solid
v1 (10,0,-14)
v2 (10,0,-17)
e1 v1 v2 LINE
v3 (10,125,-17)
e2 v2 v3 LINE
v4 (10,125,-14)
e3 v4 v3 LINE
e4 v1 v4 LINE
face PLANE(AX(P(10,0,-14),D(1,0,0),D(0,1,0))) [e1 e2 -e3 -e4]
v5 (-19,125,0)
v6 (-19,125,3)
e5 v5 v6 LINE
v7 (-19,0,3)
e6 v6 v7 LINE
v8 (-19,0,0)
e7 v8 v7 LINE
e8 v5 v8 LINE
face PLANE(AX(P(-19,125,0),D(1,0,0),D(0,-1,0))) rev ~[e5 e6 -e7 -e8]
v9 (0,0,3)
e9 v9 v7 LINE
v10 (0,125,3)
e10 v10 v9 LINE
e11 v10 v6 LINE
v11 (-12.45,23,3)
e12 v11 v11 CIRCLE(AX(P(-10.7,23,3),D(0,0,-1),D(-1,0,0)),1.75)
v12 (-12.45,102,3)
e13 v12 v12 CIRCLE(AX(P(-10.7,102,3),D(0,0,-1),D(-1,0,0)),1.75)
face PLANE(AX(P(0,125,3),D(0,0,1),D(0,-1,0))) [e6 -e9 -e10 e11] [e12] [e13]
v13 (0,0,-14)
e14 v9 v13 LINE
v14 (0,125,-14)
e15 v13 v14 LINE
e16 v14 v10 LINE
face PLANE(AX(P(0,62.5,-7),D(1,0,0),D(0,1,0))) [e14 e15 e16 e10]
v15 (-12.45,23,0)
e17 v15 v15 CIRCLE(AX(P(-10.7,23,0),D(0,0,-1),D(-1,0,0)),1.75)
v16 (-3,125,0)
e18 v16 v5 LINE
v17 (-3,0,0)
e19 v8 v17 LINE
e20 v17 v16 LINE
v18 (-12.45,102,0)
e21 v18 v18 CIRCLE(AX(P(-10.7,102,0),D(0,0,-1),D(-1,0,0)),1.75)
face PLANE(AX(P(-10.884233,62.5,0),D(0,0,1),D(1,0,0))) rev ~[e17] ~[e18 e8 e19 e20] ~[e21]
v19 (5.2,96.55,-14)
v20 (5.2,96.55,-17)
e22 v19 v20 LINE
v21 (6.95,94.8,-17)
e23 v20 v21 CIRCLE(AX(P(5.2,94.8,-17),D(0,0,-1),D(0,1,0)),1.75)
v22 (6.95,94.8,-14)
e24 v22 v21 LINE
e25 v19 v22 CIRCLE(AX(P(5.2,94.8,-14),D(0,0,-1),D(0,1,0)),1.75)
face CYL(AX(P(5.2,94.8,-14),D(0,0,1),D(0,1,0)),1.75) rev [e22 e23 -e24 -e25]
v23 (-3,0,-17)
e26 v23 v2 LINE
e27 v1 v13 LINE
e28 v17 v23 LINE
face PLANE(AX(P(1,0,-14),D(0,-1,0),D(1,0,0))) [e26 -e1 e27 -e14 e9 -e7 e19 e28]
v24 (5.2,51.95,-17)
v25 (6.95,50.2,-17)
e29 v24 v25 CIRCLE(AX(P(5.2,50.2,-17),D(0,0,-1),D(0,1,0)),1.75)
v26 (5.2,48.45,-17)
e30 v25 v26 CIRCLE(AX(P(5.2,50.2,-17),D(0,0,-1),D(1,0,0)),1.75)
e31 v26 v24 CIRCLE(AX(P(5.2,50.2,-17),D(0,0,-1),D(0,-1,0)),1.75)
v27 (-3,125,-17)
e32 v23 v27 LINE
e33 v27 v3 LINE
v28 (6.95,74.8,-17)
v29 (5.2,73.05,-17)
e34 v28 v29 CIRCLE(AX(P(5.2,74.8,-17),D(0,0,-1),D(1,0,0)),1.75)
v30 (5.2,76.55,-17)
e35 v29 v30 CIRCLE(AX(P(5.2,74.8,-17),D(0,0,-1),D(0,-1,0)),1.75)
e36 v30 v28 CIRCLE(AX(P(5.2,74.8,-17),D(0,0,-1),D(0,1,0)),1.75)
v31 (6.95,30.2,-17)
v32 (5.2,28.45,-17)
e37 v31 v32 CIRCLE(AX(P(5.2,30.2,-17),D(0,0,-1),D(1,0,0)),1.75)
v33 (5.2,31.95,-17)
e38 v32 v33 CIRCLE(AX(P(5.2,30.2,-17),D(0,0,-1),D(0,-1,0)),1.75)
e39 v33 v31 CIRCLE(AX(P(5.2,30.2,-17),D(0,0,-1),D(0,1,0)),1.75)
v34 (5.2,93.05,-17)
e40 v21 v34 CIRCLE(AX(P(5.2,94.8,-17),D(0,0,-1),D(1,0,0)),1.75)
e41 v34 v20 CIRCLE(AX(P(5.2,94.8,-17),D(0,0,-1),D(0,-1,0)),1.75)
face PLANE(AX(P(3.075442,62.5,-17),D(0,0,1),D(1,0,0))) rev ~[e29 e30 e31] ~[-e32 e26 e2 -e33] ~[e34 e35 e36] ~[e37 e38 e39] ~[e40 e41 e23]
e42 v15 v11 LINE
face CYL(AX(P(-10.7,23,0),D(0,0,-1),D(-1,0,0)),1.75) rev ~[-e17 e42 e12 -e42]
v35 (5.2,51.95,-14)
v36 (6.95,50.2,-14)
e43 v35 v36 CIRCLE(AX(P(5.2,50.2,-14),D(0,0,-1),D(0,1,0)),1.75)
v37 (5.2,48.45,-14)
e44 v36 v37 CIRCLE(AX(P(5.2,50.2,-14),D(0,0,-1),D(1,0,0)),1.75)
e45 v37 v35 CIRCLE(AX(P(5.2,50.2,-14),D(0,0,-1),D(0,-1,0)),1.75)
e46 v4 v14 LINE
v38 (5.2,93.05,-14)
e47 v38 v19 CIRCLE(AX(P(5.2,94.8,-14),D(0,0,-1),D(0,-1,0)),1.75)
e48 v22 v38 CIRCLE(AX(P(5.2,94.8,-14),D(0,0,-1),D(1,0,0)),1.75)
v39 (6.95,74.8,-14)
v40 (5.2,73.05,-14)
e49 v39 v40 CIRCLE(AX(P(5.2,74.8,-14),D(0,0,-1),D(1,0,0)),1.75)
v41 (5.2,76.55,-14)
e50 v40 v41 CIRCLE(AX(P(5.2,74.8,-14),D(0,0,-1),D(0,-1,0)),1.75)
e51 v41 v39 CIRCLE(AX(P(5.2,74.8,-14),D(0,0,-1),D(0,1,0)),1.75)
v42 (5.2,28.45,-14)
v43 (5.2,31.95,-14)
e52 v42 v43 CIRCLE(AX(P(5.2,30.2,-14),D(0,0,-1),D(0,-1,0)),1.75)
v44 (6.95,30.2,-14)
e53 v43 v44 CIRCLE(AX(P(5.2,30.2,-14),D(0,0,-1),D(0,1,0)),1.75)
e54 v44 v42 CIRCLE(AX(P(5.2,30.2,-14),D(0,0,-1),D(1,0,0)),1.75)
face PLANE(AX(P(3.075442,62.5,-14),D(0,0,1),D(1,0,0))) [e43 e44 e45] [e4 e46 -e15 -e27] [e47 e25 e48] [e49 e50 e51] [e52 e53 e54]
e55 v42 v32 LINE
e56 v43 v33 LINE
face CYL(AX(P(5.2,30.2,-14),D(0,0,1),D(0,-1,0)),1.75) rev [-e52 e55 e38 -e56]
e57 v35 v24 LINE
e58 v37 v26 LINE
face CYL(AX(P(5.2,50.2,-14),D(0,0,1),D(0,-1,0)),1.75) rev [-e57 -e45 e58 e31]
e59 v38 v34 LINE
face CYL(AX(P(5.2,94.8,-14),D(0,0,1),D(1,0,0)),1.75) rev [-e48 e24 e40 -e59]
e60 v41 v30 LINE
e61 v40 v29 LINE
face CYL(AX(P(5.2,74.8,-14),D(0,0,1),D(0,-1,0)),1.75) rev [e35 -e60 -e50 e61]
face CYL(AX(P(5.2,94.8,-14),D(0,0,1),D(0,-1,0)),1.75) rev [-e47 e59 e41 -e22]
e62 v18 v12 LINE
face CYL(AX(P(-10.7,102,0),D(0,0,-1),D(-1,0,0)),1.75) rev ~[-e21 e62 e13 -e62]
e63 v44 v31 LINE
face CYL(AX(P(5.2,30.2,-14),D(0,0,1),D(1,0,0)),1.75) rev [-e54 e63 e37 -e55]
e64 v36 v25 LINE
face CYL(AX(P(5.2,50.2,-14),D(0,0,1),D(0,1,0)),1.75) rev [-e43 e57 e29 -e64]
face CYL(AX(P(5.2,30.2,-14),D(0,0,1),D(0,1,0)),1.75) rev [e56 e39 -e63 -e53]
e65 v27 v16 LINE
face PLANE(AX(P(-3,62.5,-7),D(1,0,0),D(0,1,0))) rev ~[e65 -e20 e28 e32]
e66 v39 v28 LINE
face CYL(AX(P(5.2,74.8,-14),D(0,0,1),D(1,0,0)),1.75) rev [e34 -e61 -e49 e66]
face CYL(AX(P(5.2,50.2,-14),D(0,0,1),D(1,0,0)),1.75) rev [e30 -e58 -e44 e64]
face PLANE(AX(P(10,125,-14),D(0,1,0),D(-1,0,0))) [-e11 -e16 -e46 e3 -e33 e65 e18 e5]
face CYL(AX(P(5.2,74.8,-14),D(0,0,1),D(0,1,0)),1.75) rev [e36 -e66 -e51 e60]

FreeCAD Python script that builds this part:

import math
import FreeCAD as App
import Part
import Sketcher

V = App.Vector
Q = App.Units.Quantity


def add_polygon(sketch, points):
    """Adds a closed chain of lines whose ends are joined by coincident constraints."""
    first, n = sketch.GeometryCount, len(points)
    for a, b in zip(points, points[1:] + points[:1]):
        sketch.addGeometry(Part.LineSegment(App.Vector(*a, 0), App.Vector(*b, 0)), False)
    for i in range(n):
        sketch.addConstraint(Sketcher.Constraint("Coincident", first + i, 2, first + (i + 1) % n, 1))

doc = App.newDocument("Part")
params = doc.addObject("Spreadsheet::Sheet", "Params")
for row, (alias, value) in enumerate([
    ("sketch1_diameter", "3.5 mm"),
    ("sketch1_height", "125 mm"),
    ("pad1_length", "3 mm"),
    ("sketch2_width", "125 mm"),
    ("sketch2_height", "20 mm"),
    ("pad2_length", "3 mm"),
    ("sketch3_width", "1 mm"),
    ("sketch3_height", "3 mm"),
    ("pad3_length", "125 mm"),
    ("sketch4_width", "9 mm"),
    ("sketch4_height", "125 mm"),
    ("sketch4_radius", "1.75 mm"),
    ("pad4_length", "3 mm"),
], start=1):
    params.set(f"A{row}", alias)
    params.set(f"B{row}", "=" + value)
    params.setAlias(f"B{row}", alias)

body = doc.addObject("PartDesign::Body", "Body")

# Sketch on XY plane
sketch1 = body.newObject("Sketcher::SketchObject", "Sketch")
sketch1.AttachmentSupport = (doc.getObject("XY_Plane"), [""])
sketch1.MapMode = "FlatFace"
add_polygon(sketch1, [(-19, 0), (-2.768467, 0), (-2.768467, 125), (-19, 125)])  # lines 0-3
sketch1.addGeometry(Part.Circle(V(-10.7, 23, 0), V(0, 0, 1), 1.75), False)  # 4
sketch1.addGeometry(Part.Circle(V(-10.7, 102, 0), V(0, 0, 1), 1.75), False)  # 5
sketch1.addConstraint(Sketcher.Constraint("Horizontal", 0))
sketch1.addConstraint(Sketcher.Constraint("Vertical", 1))
sketch1.addConstraint(Sketcher.Constraint("Horizontal", 2))
sketch1.addConstraint(Sketcher.Constraint("Vertical", 3))
sketch1.addConstraint(Sketcher.Constraint("Equal", 4, 5))
sketch1.addConstraint(Sketcher.Constraint("PointOnObject", 0, 2, -1))
sketch1.addConstraint(Sketcher.Constraint("Vertical", 4, 3, 5, 3))
sketch1.addConstraint(Sketcher.Constraint("Diameter", 4, Q("3.5 mm")))
sketch1.addConstraint(Sketcher.Constraint("DistanceY", 1, 1, 1, 2, Q("125 mm")))
sketch1.addConstraint(Sketcher.Constraint("DistanceY", -1, 1, 4, 3, Q("23 mm")))
sketch1.addConstraint(Sketcher.Constraint("DistanceY", -1, 1, 5, 3, Q("102 mm")))
sketch1.addConstraint(Sketcher.Constraint("DistanceX", 2, 2, -1, 1, Q("19 mm")))
sketch1.addConstraint(Sketcher.Constraint("DistanceX", 4, 3, -1, 1, Q("10.7 mm")))
sketch1.addConstraint(Sketcher.Constraint("DistanceX", 0, 1, 0, 2, Q("16.231533 mm")))
sketch1.setExpression("Constraints[11]", "Params.sketch1_diameter")
sketch1.setExpression("Constraints[12]", "Params.sketch1_height")
pad1 = body.newObject("PartDesign::Pad", "Pad")
pad1.Profile = sketch1
pad1.setExpression("Length", "Params.pad1_length")

# Sketch on YZ plane
sketch2 = body.newObject("Sketcher::SketchObject", "Sketch001")
sketch2.AttachmentSupport = (doc.getObject("YZ_Plane"), [""])
sketch2.MapMode = "FlatFace"
add_polygon(sketch2, [(0, 3), (0, -17), (125, -17), (125, 3)])  # lines 0-3
sketch2.addConstraint(Sketcher.Constraint("Vertical", 0))
sketch2.addConstraint(Sketcher.Constraint("Horizontal", 1))
sketch2.addConstraint(Sketcher.Constraint("Vertical", 2))
sketch2.addConstraint(Sketcher.Constraint("Horizontal", 3))
sketch2.addConstraint(Sketcher.Constraint("PointOnObject", 0, 2, -2))
sketch2.addConstraint(Sketcher.Constraint("DistanceX", 1, 1, 1, 2, Q("125 mm")))
sketch2.addConstraint(Sketcher.Constraint("DistanceY", 0, 2, 0, 1, Q("20 mm")))
sketch2.addConstraint(Sketcher.Constraint("DistanceY", 0, 2, -1, 1, Q("17 mm")))
sketch2.setExpression("Constraints[9]", "Params.sketch2_width")
sketch2.setExpression("Constraints[10]", "Params.sketch2_height")
pad2 = body.newObject("PartDesign::Pad", "Pad001")
pad2.Profile = sketch2
pad2.setExpression("Length", "Params.pad2_length")
pad2.Reversed = True

# Sketch on XZ plane
sketch3 = body.newObject("Sketcher::SketchObject", "Sketch002")
sketch3.AttachmentSupport = (doc.getObject("XZ_Plane"), [""])
sketch3.MapMode = "FlatFace"
add_polygon(sketch3, [(0, -14), (0, -17), (1, -17), (1, -14)])  # lines 0-3
sketch3.addConstraint(Sketcher.Constraint("Vertical", 0))
sketch3.addConstraint(Sketcher.Constraint("Horizontal", 1))
sketch3.addConstraint(Sketcher.Constraint("Vertical", 2))
sketch3.addConstraint(Sketcher.Constraint("Horizontal", 3))
sketch3.addConstraint(Sketcher.Constraint("PointOnObject", 0, 2, -2))
sketch3.addConstraint(Sketcher.Constraint("DistanceX", 1, 1, 1, 2, Q("1 mm")))
sketch3.addConstraint(Sketcher.Constraint("DistanceY", 0, 2, 0, 1, Q("3 mm")))
sketch3.addConstraint(Sketcher.Constraint("DistanceY", 0, 2, -1, 1, Q("17 mm")))
sketch3.setExpression("Constraints[9]", "Params.sketch3_width")
sketch3.setExpression("Constraints[10]", "Params.sketch3_height")
pad3 = body.newObject("PartDesign::Pad", "Pad002")
pad3.Profile = sketch3
pad3.setExpression("Length", "Params.pad3_length")
pad3.Reversed = True

# Sketch on XY plane
sketch4 = body.newObject("Sketcher::SketchObject", "Sketch003")
sketch4.AttachmentSupport = (doc.getObject("XY_Plane"), [""])
sketch4.MapMode = "FlatFace"
sketch4.AttachmentOffset = App.Placement(V(0, 0, -14), App.Rotation())
add_polygon(sketch4, [(1, 125), (1, 0), (10, 0), (10, 125)])  # lines 0-3
sketch4.addGeometry(Part.ArcOfCircle(Part.Circle(V(5.2, 30.2, 0), V(0, 0, 1), 1.75), math.radians(90), math.radians(270)), False)  # 4
sketch4.addGeometry(Part.ArcOfCircle(Part.Circle(V(5.2, 30.2, 0), V(0, 0, 1), 1.75), math.radians(0), math.radians(90)), False)  # 5
sketch4.addGeometry(Part.ArcOfCircle(Part.Circle(V(5.2, 30.2, 0), V(0, 0, 1), 1.75), math.radians(-90), math.radians(0)), False)  # 6
sketch4.addGeometry(Part.ArcOfCircle(Part.Circle(V(5.2, 50.2, 0), V(0, 0, 1), 1.75), math.radians(90), math.radians(270)), False)  # 7
sketch4.addGeometry(Part.ArcOfCircle(Part.Circle(V(5.2, 50.2, 0), V(0, 0, 1), 1.75), math.radians(0), math.radians(90)), False)  # 8
sketch4.addGeometry(Part.ArcOfCircle(Part.Circle(V(5.2, 50.2, 0), V(0, 0, 1), 1.75), math.radians(-90), math.radians(0)), False)  # 9
sketch4.addGeometry(Part.ArcOfCircle(Part.Circle(V(5.2, 74.8, 0), V(0, 0, 1), 1.75), math.radians(90), math.radians(270)), False)  # 10
sketch4.addGeometry(Part.ArcOfCircle(Part.Circle(V(5.2, 74.8, 0), V(0, 0, 1), 1.75), math.radians(0), math.radians(90)), False)  # 11
sketch4.addGeometry(Part.ArcOfCircle(Part.Circle(V(5.2, 74.8, 0), V(0, 0, 1), 1.75), math.radians(-90), math.radians(0)), False)  # 12
sketch4.addGeometry(Part.ArcOfCircle(Part.Circle(V(5.2, 94.8, 0), V(0, 0, 1), 1.75), math.radians(90), math.radians(270)), False)  # 13
sketch4.addGeometry(Part.ArcOfCircle(Part.Circle(V(5.2, 94.8, 0), V(0, 0, 1), 1.75), math.radians(0), math.radians(90)), False)  # 14
sketch4.addGeometry(Part.ArcOfCircle(Part.Circle(V(5.2, 94.8, 0), V(0, 0, 1), 1.75), math.radians(-90), math.radians(0)), False)  # 15
sketch4.addConstraint(Sketcher.Constraint("Tangent", 4, 1, 5, 2))
sketch4.addConstraint(Sketcher.Constraint("Tangent", 5, 1, 6, 2))
sketch4.addConstraint(Sketcher.Constraint("Tangent", 6, 1, 4, 2))
sketch4.addConstraint(Sketcher.Constraint("Tangent", 7, 1, 8, 2))
sketch4.addConstraint(Sketcher.Constraint("Tangent", 8, 1, 9, 2))
sketch4.addConstraint(Sketcher.Constraint("Tangent", 9, 1, 7, 2))
sketch4.addConstraint(Sketcher.Constraint("Tangent", 10, 1, 11, 2))
sketch4.addConstraint(Sketcher.Constraint("Tangent", 11, 1, 12, 2))
sketch4.addConstraint(Sketcher.Constraint("Tangent", 12, 1, 10, 2))
sketch4.addConstraint(Sketcher.Constraint("Tangent", 13, 1, 14, 2))
sketch4.addConstraint(Sketcher.Constraint("Tangent", 14, 1, 15, 2))
sketch4.addConstraint(Sketcher.Constraint("Tangent", 15, 1, 13, 2))
sketch4.addConstraint(Sketcher.Constraint("Vertical", 0))
sketch4.addConstraint(Sketcher.Constraint("Horizontal", 1))
sketch4.addConstraint(Sketcher.Constraint("Vertical", 2))
sketch4.addConstraint(Sketcher.Constraint("Horizontal", 3))
sketch4.addConstraint(Sketcher.Constraint("Equal", 6, 7))
sketch4.addConstraint(Sketcher.Constraint("Equal", 9, 10))
sketch4.addConstraint(Sketcher.Constraint("Equal", 12, 13))
sketch4.addConstraint(Sketcher.Constraint("PointOnObject", 0, 2, -1))
sketch4.addConstraint(Sketcher.Constraint("Horizontal", 6, 3, 5, 1))
sketch4.addConstraint(Sketcher.Constraint("Horizontal", 9, 3, 8, 1))
sketch4.addConstraint(Sketcher.Constraint("Horizontal", 12, 3, 11, 1))
sketch4.addConstraint(Sketcher.Constraint("Horizontal", 15, 3, 14, 1))
sketch4.addConstraint(Sketcher.Constraint("Vertical", 6, 3, 7, 3))
sketch4.addConstraint(Sketcher.Constraint("Vertical", 9, 3, 10, 3))
sketch4.addConstraint(Sketcher.Constraint("Vertical", 12, 3, 13, 3))
sketch4.addConstraint(Sketcher.Constraint("Vertical", 15, 3, 4, 1))
sketch4.addConstraint(Sketcher.Constraint("Vertical", 4, 1, 6, 1))
sketch4.addConstraint(Sketcher.Constraint("Vertical", 6, 1, 7, 1))
sketch4.addConstraint(Sketcher.Constraint("Vertical", 7, 1, 9, 1))
sketch4.addConstraint(Sketcher.Constraint("Vertical", 9, 1, 10, 1))
sketch4.addConstraint(Sketcher.Constraint("Vertical", 10, 1, 12, 1))
sketch4.addConstraint(Sketcher.Constraint("Vertical", 12, 1, 13, 1))
sketch4.addConstraint(Sketcher.Constraint("Vertical", 13, 1, 15, 1))
sketch4.addConstraint(Sketcher.Constraint("DistanceX", 1, 1, 1, 2, Q("9 mm")))
sketch4.addConstraint(Sketcher.Constraint("DistanceY", 0, 2, 0, 1, Q("125 mm")))
sketch4.addConstraint(Sketcher.Constraint("Radius", 4, Q("1.75 mm")))
sketch4.addConstraint(Sketcher.Constraint("DistanceX", -1, 1, 0, 2, Q("1 mm")))
sketch4.addConstraint(Sketcher.Constraint("DistanceY", 4, 3, 7, 3, Q("20 mm")))
sketch4.addConstraint(Sketcher.Constraint("DistanceY", 10, 3, 13, 3, Q("20 mm")))
sketch4.addConstraint(Sketcher.Constraint("DistanceX", -1, 1, 4, 3, Q("5.2 mm")))
sketch4.addConstraint(Sketcher.Constraint("DistanceY", -1, 1, 4, 3, Q("30.2 mm")))
sketch4.addConstraint(Sketcher.Constraint("DistanceY", -1, 1, 10, 3, Q("74.8 mm")))
sketch4.setExpression("Constraints[39]", "Params.sketch4_width")
sketch4.setExpression("Constraints[40]", "Params.sketch4_height")
sketch4.setExpression("Constraints[41]", "Params.sketch4_radius")
pad4 = body.newObject("PartDesign::Pad", "Pad003")
pad4.Profile = sketch4
pad4.setExpression("Length", "Params.pad4_length")
pad4.Reversed = True

doc.recompute()
